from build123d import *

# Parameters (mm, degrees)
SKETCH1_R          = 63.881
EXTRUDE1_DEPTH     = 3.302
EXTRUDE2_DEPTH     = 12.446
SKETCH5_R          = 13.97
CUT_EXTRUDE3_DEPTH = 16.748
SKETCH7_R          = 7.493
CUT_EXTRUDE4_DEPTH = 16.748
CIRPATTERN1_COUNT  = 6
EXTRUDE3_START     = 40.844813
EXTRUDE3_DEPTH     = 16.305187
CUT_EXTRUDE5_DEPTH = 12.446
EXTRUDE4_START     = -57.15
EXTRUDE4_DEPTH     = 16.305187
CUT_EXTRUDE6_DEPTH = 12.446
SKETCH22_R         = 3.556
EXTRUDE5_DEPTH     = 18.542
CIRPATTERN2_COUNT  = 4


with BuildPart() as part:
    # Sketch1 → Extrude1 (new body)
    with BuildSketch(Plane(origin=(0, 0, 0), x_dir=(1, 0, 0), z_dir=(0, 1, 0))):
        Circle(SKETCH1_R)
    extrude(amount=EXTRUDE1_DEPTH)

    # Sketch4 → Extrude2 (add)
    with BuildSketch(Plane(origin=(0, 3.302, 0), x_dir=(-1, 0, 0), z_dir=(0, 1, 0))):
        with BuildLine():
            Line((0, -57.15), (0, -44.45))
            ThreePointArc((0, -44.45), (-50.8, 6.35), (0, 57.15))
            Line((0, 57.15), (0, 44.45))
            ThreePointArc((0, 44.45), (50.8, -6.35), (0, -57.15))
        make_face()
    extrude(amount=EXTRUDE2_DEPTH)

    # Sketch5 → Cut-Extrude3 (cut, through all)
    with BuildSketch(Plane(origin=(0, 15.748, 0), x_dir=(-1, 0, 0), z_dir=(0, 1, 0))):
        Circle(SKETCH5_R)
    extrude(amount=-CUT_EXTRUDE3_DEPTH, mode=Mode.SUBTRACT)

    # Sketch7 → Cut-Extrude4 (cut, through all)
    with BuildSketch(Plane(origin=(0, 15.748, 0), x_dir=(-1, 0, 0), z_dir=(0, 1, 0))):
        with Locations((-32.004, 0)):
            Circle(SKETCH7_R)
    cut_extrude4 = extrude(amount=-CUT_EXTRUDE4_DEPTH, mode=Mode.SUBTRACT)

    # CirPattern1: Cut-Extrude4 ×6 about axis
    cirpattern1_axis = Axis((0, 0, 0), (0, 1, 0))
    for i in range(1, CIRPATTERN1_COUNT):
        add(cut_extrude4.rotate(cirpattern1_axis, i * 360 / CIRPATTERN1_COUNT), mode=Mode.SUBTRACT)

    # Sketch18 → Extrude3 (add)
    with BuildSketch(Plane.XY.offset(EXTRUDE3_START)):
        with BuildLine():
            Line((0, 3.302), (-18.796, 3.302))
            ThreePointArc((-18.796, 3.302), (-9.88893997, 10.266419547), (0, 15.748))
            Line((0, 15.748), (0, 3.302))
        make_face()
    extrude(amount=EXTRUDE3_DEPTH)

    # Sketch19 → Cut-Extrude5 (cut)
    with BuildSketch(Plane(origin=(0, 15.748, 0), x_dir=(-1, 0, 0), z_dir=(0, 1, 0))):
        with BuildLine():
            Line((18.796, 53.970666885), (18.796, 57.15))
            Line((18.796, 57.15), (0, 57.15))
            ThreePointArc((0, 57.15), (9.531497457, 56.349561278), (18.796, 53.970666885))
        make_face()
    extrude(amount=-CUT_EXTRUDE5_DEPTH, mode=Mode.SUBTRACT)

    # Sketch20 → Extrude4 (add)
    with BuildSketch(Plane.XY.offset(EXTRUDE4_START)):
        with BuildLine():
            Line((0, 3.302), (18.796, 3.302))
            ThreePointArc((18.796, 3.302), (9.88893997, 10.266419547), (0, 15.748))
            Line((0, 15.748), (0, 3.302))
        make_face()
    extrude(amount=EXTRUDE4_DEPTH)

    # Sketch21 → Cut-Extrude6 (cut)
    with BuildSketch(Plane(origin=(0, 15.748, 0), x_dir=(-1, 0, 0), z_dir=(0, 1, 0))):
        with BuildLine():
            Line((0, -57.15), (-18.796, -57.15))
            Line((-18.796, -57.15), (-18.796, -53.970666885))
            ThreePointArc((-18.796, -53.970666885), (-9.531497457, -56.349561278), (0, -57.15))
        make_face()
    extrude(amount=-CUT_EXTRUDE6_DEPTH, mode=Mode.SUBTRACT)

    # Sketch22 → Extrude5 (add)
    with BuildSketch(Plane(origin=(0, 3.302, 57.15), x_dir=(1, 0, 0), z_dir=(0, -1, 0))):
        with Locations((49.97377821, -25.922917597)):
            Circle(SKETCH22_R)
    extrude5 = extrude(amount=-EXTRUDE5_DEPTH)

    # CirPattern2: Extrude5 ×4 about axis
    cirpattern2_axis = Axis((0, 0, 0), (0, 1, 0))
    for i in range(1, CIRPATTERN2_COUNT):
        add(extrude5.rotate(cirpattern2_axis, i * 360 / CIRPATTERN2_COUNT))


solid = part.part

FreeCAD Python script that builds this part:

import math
import FreeCAD as App
import Part
import Sketcher
Q = App.Units.Quantity

doc = App.newDocument("Part")
params = doc.addObject("Spreadsheet::Sheet", "Params")
for row, (alias, value) in enumerate([
    ("sketch1_diameter", "5.03 in"),
    ("pad1_length", "0.13 in"),
    ("sketch2_radius", "2 in"),
    ("sketch2_height", "0.5 in"),
    ("pad2_length", "0.49 in"),
    ("sketch3_diameter", "1.1 in"),
    ("sketch4_diameter", "0.59 in"),
    ("sketch5_radius", "2.83 in"),
    ("sketch5_width", "0.74 in"),
    ("sketch5_height", "0.49 in"),
    ("pad3_length", "16.305187 mm"),
    ("sketch6_radius", "2.25 in"),
    ("sketch6_width", "0.74 in"),
    ("pocket3_length", "0.49 in"),
    ("sketch7_radius", "2.83 in"),
    ("sketch7_width", "0.74 in"),
    ("sketch7_height", "0.49 in"),
    ("pad4_length", "16.305187 mm"),
    ("sketch8_radius", "2.25 in"),
    ("sketch8_width", "0.74 in"),
    ("pocket4_length", "0.49 in"),
    ("sketch9_diameter", "0.28 in"),
    ("pad5_length", "0.73 in"),
], start=1):
    params.set(f"A{row}", alias)
    params.set(f"B{row}", "=" + value)
    params.setAlias(f"B{row}", alias)

body = doc.addObject("PartDesign::Body", "Body")

# Sketch on XZ plane
sketch1 = body.newObject("Sketcher::SketchObject", "Sketch")
sketch1.AttachmentSupport = (doc.getObject("XZ_Plane"), [""])
sketch1.MapMode = "FlatFace"
sketch1.addGeometry(Part.Circle(App.Vector(0, 0, 0), App.Vector(0, 0, 1), 63.881), False)
sketch1.addConstraint([
    Sketcher.Constraint("Coincident", 0, 3, -1, 1),
    Sketcher.Constraint("Diameter", 0, Q("5.03 in")),
])
sketch1.setExpression("Constraints[1]", "Params.sketch1_diameter")
pad1 = body.newObject("PartDesign::Pad", "Pad")
pad1.Profile = sketch1
pad1.setExpression("Length", "Params.pad1_length")
pad1.Reversed = True

# Sketch on XZ plane
sketch2 = body.newObject("Sketcher::SketchObject", "Sketch001")
sketch2.AttachmentSupport = (doc.getObject("XZ_Plane"), [""])
sketch2.MapMode = "FlatFace"
sketch2.AttachmentOffset = App.Placement(App.Vector(0, 0, -0.13 * 25.4), App.Rotation())
sketch2.addGeometry([
    Part.LineSegment(App.Vector(0, -44.45, 0), App.Vector(0, -57.15, 0)),
    Part.ArcOfCircle(Part.Circle(App.Vector(0, -6.35, 0), App.Vector(0, 0, 1), 50.8), math.radians(90), math.radians(270)),
    Part.LineSegment(App.Vector(0, 44.45, 0), App.Vector(0, 57.15, 0)),
    Part.ArcOfCircle(Part.Circle(App.Vector(0, 6.35, 0), App.Vector(0, 0, 1), 50.8), math.radians(-90), math.radians(90)),
], False)
sketch2.addConstraint([
    Sketcher.Constraint("Coincident", 0, 2, 1, 2),
    Sketcher.Constraint("Coincident", 1, 1, 2, 1),
    Sketcher.Constraint("Coincident", 2, 2, 3, 2),
    Sketcher.Constraint("Coincident", 3, 1, 0, 1),
    Sketcher.Constraint("Vertical", 0),
    Sketcher.Constraint("Vertical", 2),
    Sketcher.Constraint("Equal", 1, 3),
    Sketcher.Constraint("Symmetric", 1, 3, 3, 3, -1, 1),
    Sketcher.Constraint("PointOnObject", 1, 3, -2),
    Sketcher.Constraint("PointOnObject", 0, 2, -2),
    Sketcher.Constraint("PointOnObject", 1, 1, -2),
    Sketcher.Constraint("Radius", 1, Q("2 in")),
    Sketcher.Constraint("DistanceY", 0, 2, 0, 1, Q("0.5 in")),
])
sketch2.setExpression("Constraints[11]", "Params.sketch2_radius")
sketch2.setExpression("Constraints[12]", "Params.sketch2_height")
pad2 = body.newObject("PartDesign::Pad", "Pad001")
pad2.Profile = sketch2
pad2.setExpression("Length", "Params.pad2_length")
pad2.Reversed = True

# Sketch on XZ plane
sketch3 = body.newObject("Sketcher::SketchObject", "Sketch002")
sketch3.AttachmentSupport = (doc.getObject("XZ_Plane"), [""])
sketch3.MapMode = "FlatFace"
sketch3.AttachmentOffset = App.Placement(App.Vector(0, 0, -0.62 * 25.4), App.Rotation())
sketch3.addGeometry(Part.Circle(App.Vector(0, 0, 0), App.Vector(0, 0, 1), 13.97), False)
sketch3.addConstraint([
    Sketcher.Constraint("Coincident", 0, 3, -1, 1),
    Sketcher.Constraint("Diameter", 0, Q("1.1 in")),
])
sketch3.setExpression("Constraints[1]", "Params.sketch3_diameter")
pocket1 = body.newObject("PartDesign::Pocket", "Pocket")
pocket1.Profile = sketch3
pocket1.Type = "ThroughAll"
pocket1.Reversed = True

# Sketch on XZ plane
sketch4 = body.newObject("Sketcher::SketchObject", "Sketch003")
sketch4.AttachmentSupport = (doc.getObject("XZ_Plane"), [""])
sketch4.MapMode = "FlatFace"
sketch4.AttachmentOffset = App.Placement(App.Vector(0, 0, -0.62 * 25.4), App.Rotation())
sketch4.addGeometry(Part.Circle(App.Vector(32.004, 0, 0), App.Vector(0, 0, 1), 7.493), False)
sketch4.addConstraint([
    Sketcher.Constraint("PointOnObject", 0, 3, -1),
    Sketcher.Constraint("Diameter", 0, Q("0.59 in")),
    Sketcher.Constraint("DistanceX", -1, 1, 0, 3, Q("1.26 in")),
])
sketch4.setExpression("Constraints[1]", "Params.sketch4_diameter")
pocket2 = body.newObject("PartDesign::Pocket", "Pocket001")
pocket2.Profile = sketch4
pocket2.Type = "ThroughAll"
pocket2.Reversed = True
doc.recompute()

polarpattern = body.newObject("PartDesign::PolarPattern", "PolarPattern")
polarpattern.Originals = [pocket2]
polarpattern.Axis = (doc.getObject("Y_Axis"), [""])
polarpattern.Angle = 360
polarpattern.Occurrences = 6
body.Tip = polarpattern

# Sketch on XY plane
sketch5 = body.newObject("Sketcher::SketchObject", "Sketch004")
sketch5.AttachmentSupport = (doc.getObject("XY_Plane"), [""])
sketch5.MapMode = "FlatFace"
sketch5.AttachmentOffset = App.Placement(App.Vector(0, 0, 40.844813), App.Rotation())
sketch5.addGeometry([
    Part.LineSegment(App.Vector(-18.796, 3.302, 0), App.Vector(0, 3.302, 0)),
    Part.LineSegment(App.Vector(0, 3.302, 0), App.Vector(0, 15.748, 0)),
    Part.ArcOfCircle(Part.Circle(App.Vector(29.796921, -49.66733, 0), App.Vector(0, 0, 1), 71.882), math.radians(114.489438), math.radians(132.5326)),
], False)
sketch5.addConstraint([
    Sketcher.Constraint("Coincident", 0, 2, 1, 1),
    Sketcher.Constraint("Coincident", 1, 2, 2, 1),
    Sketcher.Constraint("Coincident", 2, 2, 0, 1),
    Sketcher.Constraint("Horizontal", 0),
    Sketcher.Constraint("Vertical", 1),
    Sketcher.Constraint("PointOnObject", 0, 2, -2),
    Sketcher.Constraint("Radius", 2, Q("2.83 in")),
    Sketcher.Constraint("DistanceX", 0, 1, 0, 2, Q("0.74 in")),
    Sketcher.Constraint("DistanceY", 1, 1, 1, 2, Q("0.49 in")),
    Sketcher.Constraint("DistanceY", -1, 1, 0, 2, Q("0.13 in")),
])
sketch5.setExpression("Constraints[6]", "Params.sketch5_radius")
sketch5.setExpression("Constraints[7]", "Params.sketch5_width")
sketch5.setExpression("Constraints[8]", "Params.sketch5_height")
pad3 = body.newObject("PartDesign::Pad", "Pad002")
pad3.Profile = sketch5
pad3.setExpression("Length", "Params.pad3_length")

# Sketch on XZ plane
sketch6 = body.newObject("Sketcher::SketchObject", "Sketch005")
sketch6.AttachmentSupport = (doc.getObject("XZ_Plane"), [""])
sketch6.MapMode = "FlatFace"
sketch6.AttachmentOffset = App.Placement(App.Vector(0, 0, -0.62 * 25.4), App.Rotation())
sketch6.addGeometry([
    Part.LineSegment(App.Vector(-18.796, 53.970667, 0), App.Vector(-18.796, 57.15, 0)),
    Part.LineSegment(App.Vector(-18.796, 57.15, 0), App.Vector(0, 57.15, 0)),
    Part.ArcOfCircle(Part.Circle(App.Vector(0, 0, 0), App.Vector(0, 0, 1), 57.15), math.radians(90), math.radians(109.201349)),
], False)
sketch6.addConstraint([
    Sketcher.Constraint("Coincident", 0, 2, 1, 1),
    Sketcher.Constraint("Tangent", 1, 2, 2, 1),
    Sketcher.Constraint("Coincident", 2, 2, 0, 1),
    Sketcher.Constraint("Vertical", 0),
    Sketcher.Constraint("Horizontal", 1),
    Sketcher.Constraint("Coincident", 2, 3, -1, 1),
    Sketcher.Constraint("Radius", 2, Q("2.25 in")),
    Sketcher.Constraint("DistanceX", 1, 1, 1, 2, Q("0.74 in")),
])
sketch6.setExpression("Constraints[6]", "Params.sketch6_radius")
sketch6.setExpression("Constraints[7]", "Params.sketch6_width")
pocket3 = body.newObject("PartDesign::Pocket", "Pocket002")
pocket3.Profile = sketch6
pocket3.setExpression("Length", "Params.pocket3_length")
pocket3.Reversed = True

# Sketch on XY plane
sketch7 = body.newObject("Sketcher::SketchObject", "Sketch006")
sketch7.AttachmentSupport = (doc.getObject("XY_Plane"), [""])
sketch7.MapMode = "FlatFace"
sketch7.AttachmentOffset = App.Placement(App.Vector(0, 0, -2.25 * 25.4), App.Rotation())
sketch7.addGeometry([
    Part.LineSegment(App.Vector(0, 3.302, 0), App.Vector(18.796, 3.302, 0)),
    Part.ArcOfCircle(Part.Circle(App.Vector(-29.796921, -49.66733, 0), App.Vector(0, 0, 1), 71.882), math.radians(47.4674), math.radians(65.510562)),
    Part.LineSegment(App.Vector(0, 15.748, 0), App.Vector(0, 3.302, 0)),
], False)
sketch7.addConstraint([
    Sketcher.Constraint("Coincident", 0, 2, 1, 1),
    Sketcher.Constraint("Coincident", 1, 2, 2, 1),
    Sketcher.Constraint("Coincident", 2, 2, 0, 1),
    Sketcher.Constraint("Horizontal", 0),
    Sketcher.Constraint("Vertical", 2),
    Sketcher.Constraint("PointOnObject", 1, 2, -2),
    Sketcher.Constraint("Radius", 1, Q("2.83 in")),
    Sketcher.Constraint("DistanceX", 0, 1, 0, 2, Q("0.74 in")),
    Sketcher.Constraint("DistanceY", 2, 2, 2, 1, Q("0.49 in")),
    Sketcher.Constraint("DistanceY", -1, 1, 0, 2, Q("0.13 in")),
])
sketch7.setExpression("Constraints[6]", "Params.sketch7_radius")
sketch7.setExpression("Constraints[7]", "Params.sketch7_width")
sketch7.setExpression("Constraints[8]", "Params.sketch7_height")
pad4 = body.newObject("PartDesign::Pad", "Pad003")
pad4.Profile = sketch7
pad4.setExpression("Length", "Params.pad4_length")

# Sketch on XZ plane
sketch8 = body.newObject("Sketcher::SketchObject", "Sketch007")
sketch8.AttachmentSupport = (doc.getObject("XZ_Plane"), [""])
sketch8.MapMode = "FlatFace"
sketch8.AttachmentOffset = App.Placement(App.Vector(0, 0, -0.62 * 25.4), App.Rotation())
sketch8.addGeometry([
    Part.LineSegment(App.Vector(18.796, -57.15, 0), App.Vector(0, -57.15, 0)),
    Part.ArcOfCircle(Part.Circle(App.Vector(0, 0, 0), App.Vector(0, 0, 1), 57.15), math.radians(-90), math.radians(-70.798651)),
    Part.LineSegment(App.Vector(18.796, -53.970667, 0), App.Vector(18.796, -57.15, 0)),
], False)
sketch8.addConstraint([
    Sketcher.Constraint("Tangent", 0, 2, 1, 1),
    Sketcher.Constraint("Coincident", 1, 2, 2, 1),
    Sketcher.Constraint("Coincident", 2, 2, 0, 1),
    Sketcher.Constraint("Horizontal", 0),
    Sketcher.Constraint("Vertical", 2),
    Sketcher.Constraint("Coincident", 1, 3, -1, 1),
    Sketcher.Constraint("Radius", 1, Q("2.25 in")),
    Sketcher.Constraint("DistanceX", 0, 2, 0, 1, Q("0.74 in")),
])
sketch8.setExpression("Constraints[6]", "Params.sketch8_radius")
sketch8.setExpression("Constraints[7]", "Params.sketch8_width")
pocket4 = body.newObject("PartDesign::Pocket", "Pocket003")
pocket4.Profile = sketch8
pocket4.setExpression("Length", "Params.pocket4_length")
pocket4.Reversed = True

# Sketch on XZ plane
sketch9 = body.newObject("Sketcher::SketchObject", "Sketch008")
sketch9.AttachmentSupport = (doc.getObject("XZ_Plane"), [""])
sketch9.MapMode = "FlatFace"
sketch9.AttachmentOffset = App.Placement(App.Vector(0, 0, -0.13 * 25.4), App.Rotation())
sketch9.addGeometry(Part.Circle(App.Vector(49.973778, 31.227082, 0), App.Vector(0, 0, 1), 3.556), False)
sketch9.addConstraint([
    Sketcher.Constraint("Diameter", 0, Q("0.28 in")),
    Sketcher.Constraint("DistanceX", -1, 1, 0, 3, Q("49.973778 mm")),
    Sketcher.Constraint("DistanceY", -1, 1, 0, 3, Q("31.227082 mm")),
])
sketch9.setExpression("Constraints[0]", "Params.sketch9_diameter")
pad5 = body.newObject("PartDesign::Pad", "Pad004")
pad5.Profile = sketch9
pad5.setExpression("Length", "Params.pad5_length")
pad5.Reversed = True
doc.recompute()

polarpattern2 = body.newObject("PartDesign::PolarPattern", "PolarPattern001")
polarpattern2.Originals = [pad5]
polarpattern2.Axis = (doc.getObject("Y_Axis"), [""])
polarpattern2.Angle = 360
polarpattern2.Occurrences = 4
body.Tip = polarpattern2

doc.recompute()
